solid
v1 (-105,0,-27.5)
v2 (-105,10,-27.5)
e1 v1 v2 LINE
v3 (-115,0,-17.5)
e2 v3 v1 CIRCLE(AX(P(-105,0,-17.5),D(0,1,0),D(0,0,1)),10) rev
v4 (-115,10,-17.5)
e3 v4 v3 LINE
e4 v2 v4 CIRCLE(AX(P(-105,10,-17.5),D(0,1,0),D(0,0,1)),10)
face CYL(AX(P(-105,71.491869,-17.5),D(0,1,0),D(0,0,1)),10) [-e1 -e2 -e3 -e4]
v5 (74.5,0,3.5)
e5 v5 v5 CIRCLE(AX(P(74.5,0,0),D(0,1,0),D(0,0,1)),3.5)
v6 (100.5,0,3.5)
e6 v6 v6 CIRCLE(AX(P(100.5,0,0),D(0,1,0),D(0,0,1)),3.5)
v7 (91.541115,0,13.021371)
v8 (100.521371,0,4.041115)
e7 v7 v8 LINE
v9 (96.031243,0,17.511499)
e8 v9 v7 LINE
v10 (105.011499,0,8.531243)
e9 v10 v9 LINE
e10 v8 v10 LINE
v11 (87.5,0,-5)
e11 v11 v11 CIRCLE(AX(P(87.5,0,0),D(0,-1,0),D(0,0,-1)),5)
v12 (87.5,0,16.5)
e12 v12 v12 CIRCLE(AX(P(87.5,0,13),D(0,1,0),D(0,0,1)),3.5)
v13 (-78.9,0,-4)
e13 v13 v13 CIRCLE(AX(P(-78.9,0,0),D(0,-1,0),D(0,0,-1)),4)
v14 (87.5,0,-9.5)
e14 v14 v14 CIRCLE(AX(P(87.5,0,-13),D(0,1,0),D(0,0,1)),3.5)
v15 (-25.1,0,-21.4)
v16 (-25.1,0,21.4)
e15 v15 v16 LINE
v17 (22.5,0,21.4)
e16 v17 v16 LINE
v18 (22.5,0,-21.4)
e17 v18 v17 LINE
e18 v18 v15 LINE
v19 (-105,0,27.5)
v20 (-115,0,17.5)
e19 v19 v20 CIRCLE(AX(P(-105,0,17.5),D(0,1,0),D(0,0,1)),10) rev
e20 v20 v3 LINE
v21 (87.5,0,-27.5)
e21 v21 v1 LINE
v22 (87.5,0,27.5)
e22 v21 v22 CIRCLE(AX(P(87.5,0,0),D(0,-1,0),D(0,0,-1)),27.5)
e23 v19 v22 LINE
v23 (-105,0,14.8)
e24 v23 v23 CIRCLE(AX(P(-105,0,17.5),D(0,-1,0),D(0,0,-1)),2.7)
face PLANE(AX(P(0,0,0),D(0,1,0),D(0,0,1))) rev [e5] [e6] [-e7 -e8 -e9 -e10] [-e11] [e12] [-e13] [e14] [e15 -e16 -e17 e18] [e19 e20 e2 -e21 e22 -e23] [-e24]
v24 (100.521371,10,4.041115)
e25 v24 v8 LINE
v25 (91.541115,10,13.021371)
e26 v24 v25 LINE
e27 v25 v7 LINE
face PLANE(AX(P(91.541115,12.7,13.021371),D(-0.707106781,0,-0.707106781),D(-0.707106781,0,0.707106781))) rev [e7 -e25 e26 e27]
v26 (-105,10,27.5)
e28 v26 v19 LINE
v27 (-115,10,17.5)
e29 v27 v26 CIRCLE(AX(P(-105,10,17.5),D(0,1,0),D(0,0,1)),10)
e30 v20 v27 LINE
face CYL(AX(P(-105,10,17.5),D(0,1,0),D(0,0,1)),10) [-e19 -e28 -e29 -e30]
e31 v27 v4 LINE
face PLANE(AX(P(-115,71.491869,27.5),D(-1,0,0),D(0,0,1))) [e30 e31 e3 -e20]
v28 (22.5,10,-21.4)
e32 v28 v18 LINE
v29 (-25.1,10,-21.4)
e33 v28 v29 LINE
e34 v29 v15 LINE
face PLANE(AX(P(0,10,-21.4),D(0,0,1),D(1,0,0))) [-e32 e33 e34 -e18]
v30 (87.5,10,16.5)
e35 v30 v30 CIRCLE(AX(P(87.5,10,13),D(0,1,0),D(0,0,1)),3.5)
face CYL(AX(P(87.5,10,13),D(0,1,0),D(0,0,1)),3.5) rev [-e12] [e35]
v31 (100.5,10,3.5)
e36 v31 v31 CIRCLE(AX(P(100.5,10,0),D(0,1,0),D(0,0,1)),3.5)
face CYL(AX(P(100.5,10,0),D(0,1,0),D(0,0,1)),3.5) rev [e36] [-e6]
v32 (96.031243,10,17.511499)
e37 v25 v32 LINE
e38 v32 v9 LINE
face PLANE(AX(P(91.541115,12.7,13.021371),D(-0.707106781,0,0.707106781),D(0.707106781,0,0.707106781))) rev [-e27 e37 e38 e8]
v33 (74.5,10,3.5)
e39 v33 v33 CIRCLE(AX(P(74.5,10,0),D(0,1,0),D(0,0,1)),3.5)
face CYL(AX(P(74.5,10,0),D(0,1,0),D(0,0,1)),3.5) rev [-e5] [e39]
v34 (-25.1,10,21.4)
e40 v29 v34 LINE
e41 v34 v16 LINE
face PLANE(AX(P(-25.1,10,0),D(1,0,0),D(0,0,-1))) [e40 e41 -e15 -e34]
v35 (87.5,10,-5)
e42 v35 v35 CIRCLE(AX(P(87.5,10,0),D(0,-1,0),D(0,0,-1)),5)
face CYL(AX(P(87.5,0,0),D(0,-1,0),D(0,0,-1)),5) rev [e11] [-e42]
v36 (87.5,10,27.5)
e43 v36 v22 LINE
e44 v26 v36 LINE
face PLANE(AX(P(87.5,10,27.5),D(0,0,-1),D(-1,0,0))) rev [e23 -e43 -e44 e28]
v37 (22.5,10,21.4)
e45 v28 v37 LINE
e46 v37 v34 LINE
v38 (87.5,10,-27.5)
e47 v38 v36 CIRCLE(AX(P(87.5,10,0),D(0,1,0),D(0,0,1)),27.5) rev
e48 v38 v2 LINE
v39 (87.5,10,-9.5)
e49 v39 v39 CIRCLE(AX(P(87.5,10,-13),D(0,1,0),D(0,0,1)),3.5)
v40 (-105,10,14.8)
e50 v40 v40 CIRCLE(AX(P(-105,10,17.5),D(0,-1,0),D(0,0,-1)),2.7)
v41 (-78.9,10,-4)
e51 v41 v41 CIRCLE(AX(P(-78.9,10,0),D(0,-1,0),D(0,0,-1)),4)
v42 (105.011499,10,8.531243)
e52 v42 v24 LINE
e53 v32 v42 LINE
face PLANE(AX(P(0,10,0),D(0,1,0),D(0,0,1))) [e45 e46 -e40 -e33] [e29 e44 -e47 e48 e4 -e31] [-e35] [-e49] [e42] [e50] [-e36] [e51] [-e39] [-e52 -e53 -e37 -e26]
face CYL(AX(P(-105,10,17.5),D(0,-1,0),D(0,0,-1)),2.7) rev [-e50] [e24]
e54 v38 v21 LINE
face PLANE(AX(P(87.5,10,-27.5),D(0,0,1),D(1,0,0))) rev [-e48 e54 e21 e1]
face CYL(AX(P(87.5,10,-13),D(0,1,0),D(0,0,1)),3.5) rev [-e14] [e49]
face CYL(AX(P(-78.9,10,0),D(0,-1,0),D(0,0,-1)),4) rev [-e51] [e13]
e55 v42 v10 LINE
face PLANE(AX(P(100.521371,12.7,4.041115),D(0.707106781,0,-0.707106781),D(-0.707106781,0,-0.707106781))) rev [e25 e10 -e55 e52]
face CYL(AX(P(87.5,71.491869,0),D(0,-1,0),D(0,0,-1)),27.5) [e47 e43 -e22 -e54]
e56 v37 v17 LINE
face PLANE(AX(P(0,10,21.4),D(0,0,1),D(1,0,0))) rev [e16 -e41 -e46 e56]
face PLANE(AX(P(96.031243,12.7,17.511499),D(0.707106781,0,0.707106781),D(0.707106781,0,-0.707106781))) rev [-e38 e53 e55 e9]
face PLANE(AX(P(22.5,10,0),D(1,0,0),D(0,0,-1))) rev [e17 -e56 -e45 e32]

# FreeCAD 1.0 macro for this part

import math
import FreeCAD as App
import Part
import Sketcher
Q = App.Units.Quantity


def edges_at(feature, points):
    """Names of the edges that pass closest to the given points."""
    edges = feature.Shape.Edges
    near = lambda p: min(range(len(edges)), key=lambda i: edges[i].distToShape(Part.Vertex(*p))[0])
    return sorted({f"Edge{near(p) + 1}" for p in points})


def add_polygon(sketch, points):
    """Adds a closed chain of lines whose ends are joined by coincident constraints."""
    first, n = sketch.GeometryCount, len(points)
    for a, b in zip(points, points[1:] + points[:1]):
        sketch.addGeometry(Part.LineSegment(App.Vector(*a, 0), App.Vector(*b, 0)), False)
    for i in range(n):
        sketch.addConstraint(Sketcher.Constraint("Coincident", first + i, 2, first + (i + 1) % n, 1))

doc = App.newDocument("Part")
params = doc.addObject("Spreadsheet::Sheet", "Params")
for row, (alias, value) in enumerate([
    ("sketch1_width", "175 mm"),
    ("sketch1_height", "55 mm"),
    ("pad1_length", "10 mm"),
    ("sketch2_radius", "27.5 mm"),
    ("sketch2_width", "27.5 mm"),
    ("pad2_length", "10 mm"),
    ("sketch3_diameter", "10 mm"),
    ("hole_diameter", "10 mm"),
    ("sketch4_diameter", "7 mm"),
    ("hole2_diameter", "7 mm"),
    ("fillet_radius", "10 mm"),
    ("sketch5_width", "42.4 mm"),
    ("sketch6_diameter", "8 mm"),
    ("sketch7_width", "47.6 mm"),
    ("sketch7_width2", "42.4 mm"),
    ("sketch7_height", "42.8 mm"),
    ("sketch8_length", "12.7 mm"),
    ("sketch8_length2", "6.35 mm"),
    ("pocket4_length", "12.7 mm"),
    ("sketch9_diameter", "5.4 mm"),
], start=1):
    params.set(f"A{row}", alias)
    params.set(f"B{row}", "=" + value)
    params.setAlias(f"B{row}", alias)

body = doc.addObject("PartDesign::Body", "Body")

# Sketch on XZ plane
sketch1 = body.newObject("Sketcher::SketchObject", "Sketch")
sketch1.AttachmentSupport = (doc.getObject("XZ_Plane"), [""])
sketch1.MapMode = "FlatFace"
add_polygon(sketch1, [(-88, -28), (-88, 28), (88, 28), (88, -28)])  # lines 0-3
sketch1.addConstraint(Sketcher.Constraint("Vertical", 0))
sketch1.addConstraint(Sketcher.Constraint("Horizontal", 1))
sketch1.addConstraint(Sketcher.Constraint("Vertical", 2))
sketch1.addConstraint(Sketcher.Constraint("Horizontal", 3))
sketch1.addConstraint(Sketcher.Constraint("Symmetric", 0, 2, 2, 2, -1, 1))
sketch1.addConstraint(Sketcher.Constraint("DistanceX", 1, 1, 1, 2, 175.0))
sketch1.addConstraint(Sketcher.Constraint("DistanceY", 0, 1, 0, 2, 55.0))
sketch1.setExpression("Constraints[9]", "Params.sketch1_width")
sketch1.setExpression("Constraints[10]", "Params.sketch1_height")
pad1 = body.newObject("PartDesign::Pad", "Pad")
pad1.Profile = sketch1
pad1.setExpression("Length", "Params.pad1_length")
pad1.Reversed = True

# Sketch on XZ plane
sketch2 = body.newObject("Sketcher::SketchObject", "Sketch001")
sketch2.AttachmentSupport = (doc.getObject("XZ_Plane"), [""])
sketch2.MapMode = "FlatFace"
add_polygon(sketch2, [(-115, 28), (-115, -28), (-88, -28), (-88, 28)])  # lines 0-3
sketch2.addGeometry(Part.LineSegment(App.Vector(88, 28, 0), App.Vector(88, -28, 0)), False)  # 4
sketch2.addGeometry(Part.ArcOfCircle(Part.Circle(App.Vector(88, 0, 0), App.Vector(0, 0, 1), 28), math.radians(-90), math.radians(90)), False)  # 5
sketch2.addConstraint(Sketcher.Constraint("Coincident", 4, 1, 5, 2))
sketch2.addConstraint(Sketcher.Constraint("Coincident", 5, 1, 4, 2))
sketch2.addConstraint(Sketcher.Constraint("Vertical", 0))
sketch2.addConstraint(Sketcher.Constraint("Horizontal", 1))
sketch2.addConstraint(Sketcher.Constraint("Vertical", 2))
sketch2.addConstraint(Sketcher.Constraint("Horizontal", 3))
sketch2.addConstraint(Sketcher.Constraint("Vertical", 4))
sketch2.addConstraint(Sketcher.Constraint("Symmetric", 1, 2, 4, 1, -1, 1))
sketch2.addConstraint(Sketcher.Constraint("PointOnObject", 5, 3, -1))
sketch2.addConstraint(Sketcher.Constraint("Horizontal", 3, 2, 4, 1))
sketch2.addConstraint(Sketcher.Constraint("Vertical", 5, 3, 4, 1))
sketch2.addConstraint(Sketcher.Constraint("Radius", 5, 27.5))
sketch2.addConstraint(Sketcher.Constraint("DistanceX", 1, 1, 1, 2, 27.5))
sketch2.addConstraint(Sketcher.Constraint("DistanceX", 0, 2, -1, 1, 115.0))
sketch2.setExpression("Constraints[15]", "Params.sketch2_radius")
sketch2.setExpression("Constraints[16]", "Params.sketch2_width")
pad2 = body.newObject("PartDesign::Pad", "Pad001")
pad2.Profile = sketch2
pad2.setExpression("Length", "Params.pad2_length")
pad2.Reversed = True

# Sketch on XZ plane
sketch3 = body.newObject("Sketcher::SketchObject", "Sketch002")
sketch3.AttachmentSupport = (doc.getObject("XZ_Plane"), [""])
sketch3.MapMode = "FlatFace"
sketch3.addGeometry(Part.Circle(App.Vector(88, 0, 0), App.Vector(0, 0, 1), 5), False)
sketch3.addConstraint(Sketcher.Constraint("PointOnObject", 0, 3, -1))
sketch3.addConstraint(Sketcher.Constraint("Diameter", 0, 10.0))
sketch3.addConstraint(Sketcher.Constraint("DistanceX", -1, 1, 0, 3, 87.5))
sketch3.setExpression("Constraints[1]", "Params.sketch3_diameter")
doc.recompute()
hole = body.newObject("PartDesign::Hole", "Hole")
hole.Profile = sketch3
hole.ThreadType = "None"
hole.setExpression("Diameter", "Params.hole_diameter")
hole.DepthType = "ThroughAll"

# Sketch on XZ plane
sketch4 = body.newObject("Sketcher::SketchObject", "Sketch003")
sketch4.AttachmentSupport = (doc.getObject("XZ_Plane"), [""])
sketch4.MapMode = "FlatFace"
sketch4.AttachmentOffset = App.Placement(App.Vector(0, 0, -10), App.Rotation())
sketch4.addGeometry(Part.Circle(App.Vector(87.5, -13, 0), App.Vector(0, 0, 1), 3.5), False)
sketch4.addGeometry(Part.Circle(App.Vector(74.5, 0, 0), App.Vector(0, 0, 1), 3.5), False)
sketch4.addGeometry(Part.Circle(App.Vector(100.5, 0, 0), App.Vector(0, 0, 1), 3.5), False)
sketch4.addGeometry(Part.Circle(App.Vector(87.5, 13, 0), App.Vector(0, 0, 1), 3.5), False)
sketch4.addConstraint(Sketcher.Constraint("Equal", 0, 1))
sketch4.addConstraint(Sketcher.Constraint("Equal", 1, 2))
sketch4.addConstraint(Sketcher.Constraint("Equal", 2, 3))
sketch4.addConstraint(Sketcher.Constraint("Symmetric", 0, 3, 3, 3, -1))
sketch4.addConstraint(Sketcher.Constraint("PointOnObject", 1, 3, -1))
sketch4.addConstraint(Sketcher.Constraint("PointOnObject", 2, 3, -1))
sketch4.addConstraint(Sketcher.Constraint("Diameter", 0, 7.0))
sketch4.addConstraint(Sketcher.Constraint("DistanceY", 0, 3, -1, 1, 13.0))
sketch4.addConstraint(Sketcher.Constraint("DistanceX", 1, 3, 0, 3, 13.0))
sketch4.addConstraint(Sketcher.Constraint("DistanceX", 0, 3, 2, 3, 13.0))
sketch4.addConstraint(Sketcher.Constraint("DistanceX", -1, 1, 0, 3, 87.5))
sketch4.setExpression("Constraints[6]", "Params.sketch4_diameter")
doc.recompute()
hole2 = body.newObject("PartDesign::Hole", "Hole001")
hole2.Profile = sketch4
hole2.ThreadType = "None"
hole2.setExpression("Diameter", "Params.hole2_diameter")
hole2.DepthType = "ThroughAll"
hole2.Reversed = True
doc.recompute()

fillet = body.newObject("PartDesign::Fillet", "Fillet")
fillet.Base = (hole2, edges_at(hole2, [(-115, 5, -27.5), (-115, 5, 27.5)]))
fillet.setExpression("Radius", "Params.fillet_radius")

# Sketch on XZ plane
sketch5 = body.newObject("Sketcher::SketchObject", "Sketch004")
sketch5.AttachmentSupport = (doc.getObject("XZ_Plane"), [""])
sketch5.MapMode = "FlatFace"
add_polygon(sketch5, [(-25, 21), (-25, -21), (18, -21), (18, 21)])  # lines 0-3
sketch5.addConstraint(Sketcher.Constraint("Vertical", 0))
sketch5.addConstraint(Sketcher.Constraint("Horizontal", 1))
sketch5.addConstraint(Sketcher.Constraint("Vertical", 2))
sketch5.addConstraint(Sketcher.Constraint("Horizontal", 3))
sketch5.addConstraint(Sketcher.Constraint("Equal", 3, 0))
sketch5.addConstraint(Sketcher.Constraint("DistanceX", 1, 1, 1, 2, 42.4))
sketch5.addConstraint(Sketcher.Constraint("DistanceX", 0, 2, -1, 1, 24.9))
sketch5.addConstraint(Sketcher.Constraint("DistanceY", 0, 2, -1, 1, 21.2))
sketch5.setExpression("Constraints[9]", "Params.sketch5_width")
pocket1 = body.newObject("PartDesign::Pocket", "Pocket")
pocket1.Profile = sketch5
pocket1.Type = "ThroughAll"

# Sketch on XZ plane
sketch6 = body.newObject("Sketcher::SketchObject", "Sketch005")
sketch6.AttachmentSupport = (doc.getObject("XZ_Plane"), [""])
sketch6.MapMode = "FlatFace"
sketch6.addGeometry(Part.Circle(App.Vector(-78.9, 0, 0), App.Vector(0, 0, 1), 4), False)
sketch6.addConstraint(Sketcher.Constraint("PointOnObject", 0, 3, -1))
sketch6.addConstraint(Sketcher.Constraint("Diameter", 0, 8.0))
sketch6.addConstraint(Sketcher.Constraint("DistanceX", 0, 3, -1, 1, 78.9))
sketch6.setExpression("Constraints[1]", "Params.sketch6_diameter")
pocket2 = body.newObject("PartDesign::Pocket", "Pocket001")
pocket2.Profile = sketch6
pocket2.Type = "ThroughAll"

# Sketch on XZ plane
sketch7 = body.newObject("Sketcher::SketchObject", "Sketch006")
sketch7.AttachmentSupport = (doc.getObject("XZ_Plane"), [""])
sketch7.MapMode = "FlatFace"
add_polygon(sketch7, [(-25, 21), (-25, -21), (22, -21), (22, 21)])  # lines 0-3
add_polygon(sketch7, [(18, 21), (18, -21), (-25, -21), (-25, 21)])  # lines 4-7
sketch7.addConstraint(Sketcher.Constraint("Vertical", 0))
sketch7.addConstraint(Sketcher.Constraint("Horizontal", 1))
sketch7.addConstraint(Sketcher.Constraint("Vertical", 2))
sketch7.addConstraint(Sketcher.Constraint("Horizontal", 3))
sketch7.addConstraint(Sketcher.Constraint("Vertical", 4))
sketch7.addConstraint(Sketcher.Constraint("Horizontal", 5))
sketch7.addConstraint(Sketcher.Constraint("Vertical", 6))
sketch7.addConstraint(Sketcher.Constraint("Horizontal", 7))
sketch7.addConstraint(Sketcher.Constraint("Equal", 7, 4))
sketch7.addConstraint(Sketcher.Constraint("DistanceX", 1, 1, 1, 2, 47.6))
sketch7.addConstraint(Sketcher.Constraint("DistanceX", 5, 2, 5, 1, 42.4))
sketch7.addConstraint(Sketcher.Constraint("DistanceY", 0, 2, 0, 1, 42.8))
sketch7.addConstraint(Sketcher.Constraint("DistanceX", 4, 2, 1, 2, 5.0))
sketch7.addConstraint(Sketcher.Constraint("DistanceX", 0, 2, -1, 1, 25.1))
sketch7.addConstraint(Sketcher.Constraint("DistanceY", 0, 2, -1, 1, 21.4))
sketch7.addConstraint(Sketcher.Constraint("DistanceY", 4, 2, -1, 1, 21.2))
sketch7.setExpression("Constraints[17]", "Params.sketch7_width")
sketch7.setExpression("Constraints[18]", "Params.sketch7_width2")
sketch7.setExpression("Constraints[19]", "Params.sketch7_height")
pocket3 = body.newObject("PartDesign::Pocket", "Pocket002")
pocket3.Profile = sketch7
pocket3.Type = "ThroughAll"

# Sketch on XZ plane
sketch8 = body.newObject("Sketcher::SketchObject", "Sketch007")
sketch8.AttachmentSupport = (doc.getObject("XZ_Plane"), [""])
sketch8.MapMode = "FlatFace"
add_polygon(sketch8, [(92, 13), (101, 4), (105, 9), (96, 18)])  # lines 0-3
sketch8.addConstraint(Sketcher.Constraint("Perpendicular", 0, 1))
sketch8.addConstraint(Sketcher.Constraint("Perpendicular", 1, 2))
sketch8.addConstraint(Sketcher.Constraint("Perpendicular", 2, 3))
sketch8.addConstraint(Sketcher.Constraint("Angle", 0, Q("-45 deg")))
sketch8.addConstraint(Sketcher.Constraint("Distance", 0, 12.7))
sketch8.addConstraint(Sketcher.Constraint("Distance", 1, 6.35))
sketch8.addConstraint(Sketcher.Constraint("DistanceX", -1, 1, 1, 2, 105.011499))
sketch8.addConstraint(Sketcher.Constraint("DistanceY", -1, 1, 2, 2, 17.511499))
sketch8.setExpression("Constraints[8]", "Params.sketch8_length")
sketch8.setExpression("Constraints[9]", "Params.sketch8_length2")
pocket4 = body.newObject("PartDesign::Pocket", "Pocket003")
pocket4.Profile = sketch8
pocket4.setExpression("Length", "Params.pocket4_length")

# Sketch on XZ plane
sketch9 = body.newObject("Sketcher::SketchObject", "Sketch008")
sketch9.AttachmentSupport = (doc.getObject("XZ_Plane"), [""])
sketch9.MapMode = "FlatFace"
sketch9.addGeometry(Part.Circle(App.Vector(-105, 17.5, 0), App.Vector(0, 0, 1), 2.7), False)
sketch9.addConstraint(Sketcher.Constraint("Diameter", 0, 5.4))
sketch9.addConstraint(Sketcher.Constraint("DistanceX", 0, 3, -1, 1, 105.0))
sketch9.addConstraint(Sketcher.Constraint("DistanceY", -1, 1, 0, 3, 17.5))
sketch9.setExpression("Constraints[0]", "Params.sketch9_diameter")
pocket5 = body.newObject("PartDesign::Pocket", "Pocket004")
pocket5.Profile = sketch9
pocket5.Type = "ThroughAll"

doc.recompute()
